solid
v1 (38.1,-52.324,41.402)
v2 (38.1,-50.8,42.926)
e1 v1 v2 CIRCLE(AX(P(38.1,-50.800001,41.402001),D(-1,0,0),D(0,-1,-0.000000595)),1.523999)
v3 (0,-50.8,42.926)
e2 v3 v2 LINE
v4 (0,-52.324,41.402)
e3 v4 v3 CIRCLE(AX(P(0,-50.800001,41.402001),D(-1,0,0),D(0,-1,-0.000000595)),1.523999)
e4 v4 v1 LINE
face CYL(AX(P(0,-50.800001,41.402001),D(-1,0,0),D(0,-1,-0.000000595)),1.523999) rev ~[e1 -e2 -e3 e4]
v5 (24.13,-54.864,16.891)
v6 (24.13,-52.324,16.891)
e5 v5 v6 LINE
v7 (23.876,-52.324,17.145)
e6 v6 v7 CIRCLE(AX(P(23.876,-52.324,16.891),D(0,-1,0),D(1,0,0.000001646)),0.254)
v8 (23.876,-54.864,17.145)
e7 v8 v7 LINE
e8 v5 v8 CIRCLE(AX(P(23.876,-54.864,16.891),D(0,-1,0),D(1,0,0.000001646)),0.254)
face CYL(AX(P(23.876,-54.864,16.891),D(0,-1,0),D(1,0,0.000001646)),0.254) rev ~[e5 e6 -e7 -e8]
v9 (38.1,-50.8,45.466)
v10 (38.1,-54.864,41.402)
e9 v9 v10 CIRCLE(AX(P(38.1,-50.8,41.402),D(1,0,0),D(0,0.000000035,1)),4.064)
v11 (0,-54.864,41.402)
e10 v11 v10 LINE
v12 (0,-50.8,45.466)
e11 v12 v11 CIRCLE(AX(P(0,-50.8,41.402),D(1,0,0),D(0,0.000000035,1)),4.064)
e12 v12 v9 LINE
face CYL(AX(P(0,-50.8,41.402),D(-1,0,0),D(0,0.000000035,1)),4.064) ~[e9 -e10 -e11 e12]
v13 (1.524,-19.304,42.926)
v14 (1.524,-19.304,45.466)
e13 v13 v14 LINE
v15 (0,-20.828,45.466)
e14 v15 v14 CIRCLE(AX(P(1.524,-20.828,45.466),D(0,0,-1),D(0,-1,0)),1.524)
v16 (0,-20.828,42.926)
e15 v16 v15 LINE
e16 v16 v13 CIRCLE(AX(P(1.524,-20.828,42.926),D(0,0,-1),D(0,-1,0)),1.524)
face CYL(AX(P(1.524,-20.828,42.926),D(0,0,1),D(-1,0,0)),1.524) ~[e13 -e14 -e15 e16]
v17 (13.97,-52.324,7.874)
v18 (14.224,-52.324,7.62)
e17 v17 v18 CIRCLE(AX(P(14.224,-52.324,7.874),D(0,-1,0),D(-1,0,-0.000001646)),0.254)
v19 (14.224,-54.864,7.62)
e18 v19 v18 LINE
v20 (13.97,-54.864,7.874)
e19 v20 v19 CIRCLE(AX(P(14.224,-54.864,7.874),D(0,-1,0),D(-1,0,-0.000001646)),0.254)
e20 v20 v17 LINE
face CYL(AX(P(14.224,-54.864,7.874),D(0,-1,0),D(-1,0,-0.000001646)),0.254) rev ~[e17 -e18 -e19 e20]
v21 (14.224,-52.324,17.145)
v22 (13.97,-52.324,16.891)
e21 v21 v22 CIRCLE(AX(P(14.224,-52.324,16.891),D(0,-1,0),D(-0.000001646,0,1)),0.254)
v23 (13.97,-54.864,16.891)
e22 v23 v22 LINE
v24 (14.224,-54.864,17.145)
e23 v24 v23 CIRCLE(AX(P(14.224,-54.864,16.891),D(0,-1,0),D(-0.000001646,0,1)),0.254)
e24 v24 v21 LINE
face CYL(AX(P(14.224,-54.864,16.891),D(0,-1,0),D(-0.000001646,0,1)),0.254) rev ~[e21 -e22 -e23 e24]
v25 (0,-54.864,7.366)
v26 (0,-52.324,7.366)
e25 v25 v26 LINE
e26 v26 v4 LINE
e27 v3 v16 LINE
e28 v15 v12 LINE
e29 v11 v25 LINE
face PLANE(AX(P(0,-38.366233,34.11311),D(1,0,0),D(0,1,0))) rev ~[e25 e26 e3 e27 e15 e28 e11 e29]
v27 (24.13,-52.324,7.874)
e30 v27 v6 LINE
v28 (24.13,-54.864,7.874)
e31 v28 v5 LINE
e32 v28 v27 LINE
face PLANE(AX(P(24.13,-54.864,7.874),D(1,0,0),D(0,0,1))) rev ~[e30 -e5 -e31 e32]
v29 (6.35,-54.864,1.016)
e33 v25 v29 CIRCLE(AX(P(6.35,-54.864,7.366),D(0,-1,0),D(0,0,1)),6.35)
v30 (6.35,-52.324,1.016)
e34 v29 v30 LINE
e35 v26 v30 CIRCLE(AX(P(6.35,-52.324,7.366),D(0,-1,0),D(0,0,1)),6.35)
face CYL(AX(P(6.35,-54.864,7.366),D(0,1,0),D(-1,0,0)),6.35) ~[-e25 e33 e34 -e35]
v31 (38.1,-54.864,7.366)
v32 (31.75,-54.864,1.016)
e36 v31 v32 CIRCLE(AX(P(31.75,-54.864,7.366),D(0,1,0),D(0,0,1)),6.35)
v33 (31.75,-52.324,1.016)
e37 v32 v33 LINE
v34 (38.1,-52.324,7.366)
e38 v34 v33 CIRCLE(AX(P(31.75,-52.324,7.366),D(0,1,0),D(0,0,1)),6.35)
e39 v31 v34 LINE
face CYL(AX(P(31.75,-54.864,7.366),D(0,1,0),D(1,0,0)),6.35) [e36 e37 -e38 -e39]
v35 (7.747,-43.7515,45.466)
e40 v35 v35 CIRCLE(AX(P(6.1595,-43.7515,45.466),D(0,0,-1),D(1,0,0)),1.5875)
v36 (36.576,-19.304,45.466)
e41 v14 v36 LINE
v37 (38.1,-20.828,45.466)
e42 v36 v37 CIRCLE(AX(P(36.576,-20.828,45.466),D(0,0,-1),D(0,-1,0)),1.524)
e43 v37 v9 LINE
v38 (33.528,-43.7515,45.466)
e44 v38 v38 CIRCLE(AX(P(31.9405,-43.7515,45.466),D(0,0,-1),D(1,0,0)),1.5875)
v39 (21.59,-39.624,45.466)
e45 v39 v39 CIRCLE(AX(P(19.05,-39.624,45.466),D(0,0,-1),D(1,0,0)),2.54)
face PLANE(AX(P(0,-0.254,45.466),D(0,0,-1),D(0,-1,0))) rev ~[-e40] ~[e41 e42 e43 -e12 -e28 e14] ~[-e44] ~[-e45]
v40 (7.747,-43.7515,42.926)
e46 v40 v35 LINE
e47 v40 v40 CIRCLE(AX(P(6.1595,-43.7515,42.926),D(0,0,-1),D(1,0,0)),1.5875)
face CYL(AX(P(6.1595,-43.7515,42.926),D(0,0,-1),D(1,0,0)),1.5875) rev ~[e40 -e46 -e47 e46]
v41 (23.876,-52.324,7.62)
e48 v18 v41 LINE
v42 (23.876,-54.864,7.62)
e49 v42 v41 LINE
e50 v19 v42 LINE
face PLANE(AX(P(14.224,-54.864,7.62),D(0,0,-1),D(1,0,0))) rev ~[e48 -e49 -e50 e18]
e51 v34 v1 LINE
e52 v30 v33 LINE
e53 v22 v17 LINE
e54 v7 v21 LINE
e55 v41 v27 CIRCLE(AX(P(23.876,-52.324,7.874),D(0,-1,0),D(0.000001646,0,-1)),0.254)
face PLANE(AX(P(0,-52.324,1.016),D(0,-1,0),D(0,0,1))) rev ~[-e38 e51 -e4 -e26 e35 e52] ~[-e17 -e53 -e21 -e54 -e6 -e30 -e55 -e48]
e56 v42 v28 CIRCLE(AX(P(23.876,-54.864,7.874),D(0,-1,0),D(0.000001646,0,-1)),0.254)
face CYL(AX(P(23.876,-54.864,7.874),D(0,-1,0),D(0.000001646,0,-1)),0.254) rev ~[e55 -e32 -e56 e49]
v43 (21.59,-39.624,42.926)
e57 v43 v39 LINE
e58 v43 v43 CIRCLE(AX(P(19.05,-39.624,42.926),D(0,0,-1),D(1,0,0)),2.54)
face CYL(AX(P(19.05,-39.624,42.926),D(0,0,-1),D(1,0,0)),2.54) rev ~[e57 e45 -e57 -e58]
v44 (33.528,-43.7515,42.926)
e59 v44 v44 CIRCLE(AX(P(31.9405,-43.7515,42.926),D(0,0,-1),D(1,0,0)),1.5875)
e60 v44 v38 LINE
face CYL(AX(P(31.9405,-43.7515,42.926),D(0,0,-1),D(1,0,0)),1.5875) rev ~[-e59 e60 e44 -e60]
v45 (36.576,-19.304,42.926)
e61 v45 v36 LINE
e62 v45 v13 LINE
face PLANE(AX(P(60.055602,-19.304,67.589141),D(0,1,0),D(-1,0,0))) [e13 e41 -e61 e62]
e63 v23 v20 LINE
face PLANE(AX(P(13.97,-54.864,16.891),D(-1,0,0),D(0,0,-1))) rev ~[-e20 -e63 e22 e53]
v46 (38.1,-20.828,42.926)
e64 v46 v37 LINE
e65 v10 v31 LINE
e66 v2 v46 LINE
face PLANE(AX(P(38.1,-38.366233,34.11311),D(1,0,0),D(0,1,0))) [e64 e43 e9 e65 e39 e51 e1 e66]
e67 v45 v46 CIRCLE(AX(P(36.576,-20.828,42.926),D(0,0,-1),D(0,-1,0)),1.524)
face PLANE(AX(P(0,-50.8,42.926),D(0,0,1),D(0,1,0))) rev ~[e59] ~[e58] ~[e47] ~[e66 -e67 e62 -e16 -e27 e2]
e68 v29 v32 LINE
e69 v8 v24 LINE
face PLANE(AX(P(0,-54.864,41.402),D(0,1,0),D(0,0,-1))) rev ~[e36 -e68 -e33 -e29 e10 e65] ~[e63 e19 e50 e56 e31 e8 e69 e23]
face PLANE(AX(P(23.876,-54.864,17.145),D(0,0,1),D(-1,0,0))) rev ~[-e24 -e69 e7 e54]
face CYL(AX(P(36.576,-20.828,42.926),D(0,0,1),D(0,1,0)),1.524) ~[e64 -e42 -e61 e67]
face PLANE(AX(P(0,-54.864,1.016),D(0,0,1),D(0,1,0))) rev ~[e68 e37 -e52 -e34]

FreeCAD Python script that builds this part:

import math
import FreeCAD as App
import Part
import Sketcher
from FreeCAD import Vector
Q = App.Units.Quantity


def edges_at(feature, points):
    """Names of the edges that pass closest to the given points."""
    edges = feature.Shape.Edges
    near = lambda p: min(range(len(edges)), key=lambda i: edges[i].distToShape(Part.Vertex(*p))[0])
    return sorted({f"Edge{near(p) + 1}" for p in points})


def add_polygon(sketch, points):
    """Adds a closed chain of lines whose ends are joined by coincident constraints."""
    first, n = sketch.GeometryCount, len(points)
    for a, b in zip(points, points[1:] + points[:1]):
        sketch.addGeometry(Part.LineSegment(App.Vector(*a, 0), App.Vector(*b, 0)), False)
    for i in range(n):
        sketch.addConstraint(Sketcher.Constraint("Coincident", first + i, 2, first + (i + 1) % n, 1))

doc = App.newDocument("Part")
body = doc.addObject("PartDesign::Body", "Body")

sketch1 = body.newObject("Sketcher::SketchObject", "Sketch")
sketch1.AttachmentSupport = (doc.getObject("YZ_Plane"), [""])
sketch1.MapMode = "FlatFace"
sketch1.addGeometry(Part.LineSegment(Vector(-54.864, 1.016, 0), Vector(-52.324, 1.016, 0)), False)
sketch1.addGeometry(Part.LineSegment(Vector(-52.324, 1.016, 0), Vector(-52.324, 41.402, 0)), False)
sketch1.addGeometry(Part.ArcOfCircle(Part.Circle(Vector(-50.800001, 41.402001, 0), Vector(0, 0, 1), 1.523999), math.radians(89.999966), math.radians(180.000034)), False)
sketch1.addGeometry(Part.LineSegment(Vector(-50.8, 42.926, 0), Vector(-0.254, 42.926, 0)), False)
sketch1.addGeometry(Part.LineSegment(Vector(-0.254, 42.926, 0), Vector(-0.254, 45.466, 0)), False)
sketch1.addGeometry(Part.LineSegment(Vector(-0.254, 45.466, 0), Vector(-50.8, 45.466, 0)), False)
sketch1.addGeometry(Part.ArcOfCircle(Part.Circle(Vector(-50.8, 41.402, 0), Vector(0, 0, 1), 4.064), math.radians(89.999998), math.radians(180.000002)), False)
sketch1.addGeometry(Part.LineSegment(Vector(-54.864, 41.402, 0), Vector(-54.864, 1.016, 0)), False)
sketch1.addConstraint(Sketcher.Constraint("Coincident", 0, 2, 1, 1))
sketch1.addConstraint(Sketcher.Constraint("Tangent", 1, 2, 2, 2))
sketch1.addConstraint(Sketcher.Constraint("Tangent", 2, 1, 3, 1))
sketch1.addConstraint(Sketcher.Constraint("Coincident", 3, 2, 4, 1))
sketch1.addConstraint(Sketcher.Constraint("Coincident", 4, 2, 5, 1))
sketch1.addConstraint(Sketcher.Constraint("Tangent", 5, 2, 6, 1))
sketch1.addConstraint(Sketcher.Constraint("Tangent", 6, 2, 7, 1))
sketch1.addConstraint(Sketcher.Constraint("Coincident", 7, 2, 0, 1))
sketch1.addConstraint(Sketcher.Constraint("Horizontal", 0))
sketch1.addConstraint(Sketcher.Constraint("Vertical", 1))
sketch1.addConstraint(Sketcher.Constraint("Horizontal", 3))
sketch1.addConstraint(Sketcher.Constraint("Vertical", 4))
sketch1.addConstraint(Sketcher.Constraint("Horizontal", 5))
sketch1.addConstraint(Sketcher.Constraint("Vertical", 7))
sketch1.addConstraint(Sketcher.Constraint("Coincident", 6, 3, 2, 3))
sketch1.addConstraint(Sketcher.Constraint("Radius", 2, Q("0.06 in")))
sketch1.addConstraint(Sketcher.Constraint("Radius", 6, Q("0.16 in")))
sketch1.addConstraint(Sketcher.Constraint("DistanceX", 2, 3, -1, 1, Q("2 in")))
sketch1.addConstraint(Sketcher.Constraint("DistanceX", 3, 1, 3, 2, Q("1.99 in")))
sketch1.addConstraint(Sketcher.Constraint("DistanceY", 1, 1, 1, 2, Q("1.59 in")))
sketch1.addConstraint(Sketcher.Constraint("DistanceY", -1, 1, 2, 3, Q("1.63 in")))
pad1 = body.newObject("PartDesign::Pad", "Pad")
pad1.Profile = sketch1
pad1.Length = Q("1.5 in")
doc.recompute()

fillet = body.newObject("PartDesign::Fillet", "Fillet")
fillet.Base = (pad1, edges_at(pad1, [(0, -0.254, 44.196), (38.1, -0.254, 44.196)]))
fillet.Radius = Q("0.06 in")

sketch2 = body.newObject("Sketcher::SketchObject", "Sketch001")
sketch2.AttachmentSupport = (doc.getObject("XY_Plane"), [""])
sketch2.MapMode = "FlatFace"
sketch2.AttachmentOffset = App.Placement(Vector(0, 0, 1.69 * 25.4), App.Rotation())
sketch2.addGeometry(Part.Circle(Vector(6.1595, -43.7515, 0), Vector(0, 0, 1), 1.5875), False)
sketch2.addGeometry(Part.Circle(Vector(19.05, -39.624, 0), Vector(0, 0, 1), 2.54), False)
sketch2.addGeometry(Part.Circle(Vector(31.9405, -43.7515, 0), Vector(0, 0, 1), 1.5875), False)
sketch2.addGeometry(Part.Circle(Vector(19.05, -7.874, 0), Vector(0, 0, 1), 2.54), False)
sketch2.addConstraint(Sketcher.Constraint("Equal", 0, 2))
sketch2.addConstraint(Sketcher.Constraint("Equal", 1, 3))
sketch2.addConstraint(Sketcher.Constraint("Horizontal", 0, 3, 2, 3))
sketch2.addConstraint(Sketcher.Constraint("Vertical", 1, 3, 3, 3))
sketch2.addConstraint(Sketcher.Constraint("Diameter", 1, Q("0.2 in")))
sketch2.addConstraint(Sketcher.Constraint("Diameter", 0, Q("0.125 in")))
sketch2.addConstraint(Sketcher.Constraint("DistanceX", -1, 1, 1, 3, Q("0.75 in")))
sketch2.addConstraint(Sketcher.Constraint("DistanceY", 1, 3, -1, 1, Q("1.56 in")))
sketch2.addConstraint(Sketcher.Constraint("DistanceY", 3, 3, -1, 1, Q("0.31 in")))
sketch2.addConstraint(Sketcher.Constraint("DistanceX", 0, 3, 2, 3, Q("1.015 in")))
sketch2.addConstraint(Sketcher.Constraint("DistanceX", -1, 1, 0, 3, Q("0.2425 in")))
sketch2.addConstraint(Sketcher.Constraint("DistanceY", 0, 3, -1, 1, Q("1.7225 in")))
pocket1 = body.newObject("PartDesign::Pocket", "Pocket")
pocket1.Profile = sketch2
pocket1.Type = "ThroughAll"
pocket1.Reversed = True

sketch3 = body.newObject("Sketcher::SketchObject", "Sketch002")
sketch3.AttachmentSupport = (doc.getObject("XZ_Plane"), [""])
sketch3.MapMode = "FlatFace"
sketch3.AttachmentOffset = App.Placement(Vector(0, 0, 2.16 * 25.4), App.Rotation())
sketch3.addGeometry(Part.ArcOfCircle(Part.Circle(Vector(14.224, 7.874, 0), Vector(0, 0, 1), 0.254), math.radians(-179.999906), math.radians(-90.000094)), False)
sketch3.addGeometry(Part.LineSegment(Vector(14.224, 7.62, 0), Vector(23.876, 7.62, 0)), False)
sketch3.addGeometry(Part.ArcOfCircle(Part.Circle(Vector(23.876, 7.874, 0), Vector(0, 0, 1), 0.254), math.radians(-89.999906), math.radians(-0.000094)), False)
sketch3.addGeometry(Part.LineSegment(Vector(24.13, 7.874, 0), Vector(24.13, 16.891, 0)), False)
sketch3.addGeometry(Part.ArcOfCircle(Part.Circle(Vector(23.876, 16.891, 0), Vector(0, 0, 1), 0.254), math.radians(0.000094), math.radians(89.999906)), False)
sketch3.addGeometry(Part.LineSegment(Vector(23.876, 17.145, 0), Vector(14.224, 17.145, 0)), False)
sketch3.addGeometry(Part.ArcOfCircle(Part.Circle(Vector(14.224, 16.891, 0), Vector(0, 0, 1), 0.254), math.radians(90.000094), math.radians(179.999906)), False)
sketch3.addGeometry(Part.LineSegment(Vector(13.97, 16.891, 0), Vector(13.97, 7.874, 0)), False)
sketch3.addConstraint(Sketcher.Constraint("Tangent", 0, 2, 1, 1))
sketch3.addConstraint(Sketcher.Constraint("Tangent", 1, 2, 2, 1))
sketch3.addConstraint(Sketcher.Constraint("Tangent", 2, 2, 3, 1))
sketch3.addConstraint(Sketcher.Constraint("Tangent", 3, 2, 4, 1))
sketch3.addConstraint(Sketcher.Constraint("Tangent", 4, 2, 5, 1))
sketch3.addConstraint(Sketcher.Constraint("Tangent", 5, 2, 6, 1))
sketch3.addConstraint(Sketcher.Constraint("Tangent", 6, 2, 7, 1))
sketch3.addConstraint(Sketcher.Constraint("Tangent", 7, 2, 0, 1))
sketch3.addConstraint(Sketcher.Constraint("Horizontal", 1))
sketch3.addConstraint(Sketcher.Constraint("Vertical", 3))
sketch3.addConstraint(Sketcher.Constraint("Horizontal", 5))
sketch3.addConstraint(Sketcher.Constraint("Vertical", 7))
sketch3.addConstraint(Sketcher.Constraint("Equal", 0, 2))
sketch3.addConstraint(Sketcher.Constraint("Equal", 2, 4))
sketch3.addConstraint(Sketcher.Constraint("Equal", 4, 6))
sketch3.addConstraint(Sketcher.Constraint("Radius", 0, Q("0.01 in")))
sketch3.addConstraint(Sketcher.Constraint("DistanceX", 1, 1, 1, 2, Q("0.38 in")))
sketch3.addConstraint(Sketcher.Constraint("DistanceY", -1, 1, 0, 2, Q("0.3 in")))
sketch3.addConstraint(Sketcher.Constraint("DistanceY", 3, 1, 3, 2, Q("0.355 in")))
sketch3.addConstraint(Sketcher.Constraint("DistanceX", -1, 1, 0, 3, Q("0.56 in")))
pocket2 = body.newObject("PartDesign::Pocket", "Pocket001")
pocket2.Profile = sketch3
pocket2.Type = "ThroughAll"
doc.recompute()

fillet2 = body.newObject("PartDesign::Fillet", "Fillet001")
fillet2.Base = (pocket2, edges_at(pocket2, [(38.1, -53.594, 1.016), (0, -53.594, 1.016)]))
fillet2.Radius = Q("0.25 in")

sketch4 = body.newObject("Sketcher::SketchObject", "Sketch003")
sketch4.AttachmentSupport = (doc.getObject("XZ_Plane"), [""])
sketch4.MapMode = "FlatFace"
sketch4.AttachmentOffset = App.Placement(Vector(0, 0, 0.01 * 25.4), App.Rotation())
add_polygon(sketch4, [(138.677469, 114.650966), (138.677469, 20.527316), (-18.566264, 20.527316), (-18.566264, 114.650966)])
sketch4.addConstraint(Sketcher.Constraint("Vertical", 0))
sketch4.addConstraint(Sketcher.Constraint("Horizontal", 1))
sketch4.addConstraint(Sketcher.Constraint("Vertical", 2))
sketch4.addConstraint(Sketcher.Constraint("Horizontal", 3))
sketch4.addConstraint(Sketcher.Constraint("DistanceY", 0, 2, 0, 1, Q("94.123651 mm")))
sketch4.addConstraint(Sketcher.Constraint("DistanceX", 1, 2, 1, 1, Q("157.243733 mm")))
sketch4.addConstraint(Sketcher.Constraint("DistanceX", -1, 1, 0, 2, Q("138.677469 mm")))
sketch4.addConstraint(Sketcher.Constraint("DistanceY", -1, 1, 0, 2, Q("20.527316 mm")))
pocket3 = body.newObject("PartDesign::Pocket", "Pocket002")
pocket3.Profile = sketch4
pocket3.Length = Q("0.75 in")
pocket3.Reversed = True
doc.recompute()

fillet3 = body.newObject("PartDesign::Fillet", "Fillet002")
fillet3.Base = (pocket3, edges_at(pocket3, [(38.1, -19.304, 44.196), (0, -19.304, 44.196)]))
fillet3.Radius = Q("0.06 in")

doc.recompute()
